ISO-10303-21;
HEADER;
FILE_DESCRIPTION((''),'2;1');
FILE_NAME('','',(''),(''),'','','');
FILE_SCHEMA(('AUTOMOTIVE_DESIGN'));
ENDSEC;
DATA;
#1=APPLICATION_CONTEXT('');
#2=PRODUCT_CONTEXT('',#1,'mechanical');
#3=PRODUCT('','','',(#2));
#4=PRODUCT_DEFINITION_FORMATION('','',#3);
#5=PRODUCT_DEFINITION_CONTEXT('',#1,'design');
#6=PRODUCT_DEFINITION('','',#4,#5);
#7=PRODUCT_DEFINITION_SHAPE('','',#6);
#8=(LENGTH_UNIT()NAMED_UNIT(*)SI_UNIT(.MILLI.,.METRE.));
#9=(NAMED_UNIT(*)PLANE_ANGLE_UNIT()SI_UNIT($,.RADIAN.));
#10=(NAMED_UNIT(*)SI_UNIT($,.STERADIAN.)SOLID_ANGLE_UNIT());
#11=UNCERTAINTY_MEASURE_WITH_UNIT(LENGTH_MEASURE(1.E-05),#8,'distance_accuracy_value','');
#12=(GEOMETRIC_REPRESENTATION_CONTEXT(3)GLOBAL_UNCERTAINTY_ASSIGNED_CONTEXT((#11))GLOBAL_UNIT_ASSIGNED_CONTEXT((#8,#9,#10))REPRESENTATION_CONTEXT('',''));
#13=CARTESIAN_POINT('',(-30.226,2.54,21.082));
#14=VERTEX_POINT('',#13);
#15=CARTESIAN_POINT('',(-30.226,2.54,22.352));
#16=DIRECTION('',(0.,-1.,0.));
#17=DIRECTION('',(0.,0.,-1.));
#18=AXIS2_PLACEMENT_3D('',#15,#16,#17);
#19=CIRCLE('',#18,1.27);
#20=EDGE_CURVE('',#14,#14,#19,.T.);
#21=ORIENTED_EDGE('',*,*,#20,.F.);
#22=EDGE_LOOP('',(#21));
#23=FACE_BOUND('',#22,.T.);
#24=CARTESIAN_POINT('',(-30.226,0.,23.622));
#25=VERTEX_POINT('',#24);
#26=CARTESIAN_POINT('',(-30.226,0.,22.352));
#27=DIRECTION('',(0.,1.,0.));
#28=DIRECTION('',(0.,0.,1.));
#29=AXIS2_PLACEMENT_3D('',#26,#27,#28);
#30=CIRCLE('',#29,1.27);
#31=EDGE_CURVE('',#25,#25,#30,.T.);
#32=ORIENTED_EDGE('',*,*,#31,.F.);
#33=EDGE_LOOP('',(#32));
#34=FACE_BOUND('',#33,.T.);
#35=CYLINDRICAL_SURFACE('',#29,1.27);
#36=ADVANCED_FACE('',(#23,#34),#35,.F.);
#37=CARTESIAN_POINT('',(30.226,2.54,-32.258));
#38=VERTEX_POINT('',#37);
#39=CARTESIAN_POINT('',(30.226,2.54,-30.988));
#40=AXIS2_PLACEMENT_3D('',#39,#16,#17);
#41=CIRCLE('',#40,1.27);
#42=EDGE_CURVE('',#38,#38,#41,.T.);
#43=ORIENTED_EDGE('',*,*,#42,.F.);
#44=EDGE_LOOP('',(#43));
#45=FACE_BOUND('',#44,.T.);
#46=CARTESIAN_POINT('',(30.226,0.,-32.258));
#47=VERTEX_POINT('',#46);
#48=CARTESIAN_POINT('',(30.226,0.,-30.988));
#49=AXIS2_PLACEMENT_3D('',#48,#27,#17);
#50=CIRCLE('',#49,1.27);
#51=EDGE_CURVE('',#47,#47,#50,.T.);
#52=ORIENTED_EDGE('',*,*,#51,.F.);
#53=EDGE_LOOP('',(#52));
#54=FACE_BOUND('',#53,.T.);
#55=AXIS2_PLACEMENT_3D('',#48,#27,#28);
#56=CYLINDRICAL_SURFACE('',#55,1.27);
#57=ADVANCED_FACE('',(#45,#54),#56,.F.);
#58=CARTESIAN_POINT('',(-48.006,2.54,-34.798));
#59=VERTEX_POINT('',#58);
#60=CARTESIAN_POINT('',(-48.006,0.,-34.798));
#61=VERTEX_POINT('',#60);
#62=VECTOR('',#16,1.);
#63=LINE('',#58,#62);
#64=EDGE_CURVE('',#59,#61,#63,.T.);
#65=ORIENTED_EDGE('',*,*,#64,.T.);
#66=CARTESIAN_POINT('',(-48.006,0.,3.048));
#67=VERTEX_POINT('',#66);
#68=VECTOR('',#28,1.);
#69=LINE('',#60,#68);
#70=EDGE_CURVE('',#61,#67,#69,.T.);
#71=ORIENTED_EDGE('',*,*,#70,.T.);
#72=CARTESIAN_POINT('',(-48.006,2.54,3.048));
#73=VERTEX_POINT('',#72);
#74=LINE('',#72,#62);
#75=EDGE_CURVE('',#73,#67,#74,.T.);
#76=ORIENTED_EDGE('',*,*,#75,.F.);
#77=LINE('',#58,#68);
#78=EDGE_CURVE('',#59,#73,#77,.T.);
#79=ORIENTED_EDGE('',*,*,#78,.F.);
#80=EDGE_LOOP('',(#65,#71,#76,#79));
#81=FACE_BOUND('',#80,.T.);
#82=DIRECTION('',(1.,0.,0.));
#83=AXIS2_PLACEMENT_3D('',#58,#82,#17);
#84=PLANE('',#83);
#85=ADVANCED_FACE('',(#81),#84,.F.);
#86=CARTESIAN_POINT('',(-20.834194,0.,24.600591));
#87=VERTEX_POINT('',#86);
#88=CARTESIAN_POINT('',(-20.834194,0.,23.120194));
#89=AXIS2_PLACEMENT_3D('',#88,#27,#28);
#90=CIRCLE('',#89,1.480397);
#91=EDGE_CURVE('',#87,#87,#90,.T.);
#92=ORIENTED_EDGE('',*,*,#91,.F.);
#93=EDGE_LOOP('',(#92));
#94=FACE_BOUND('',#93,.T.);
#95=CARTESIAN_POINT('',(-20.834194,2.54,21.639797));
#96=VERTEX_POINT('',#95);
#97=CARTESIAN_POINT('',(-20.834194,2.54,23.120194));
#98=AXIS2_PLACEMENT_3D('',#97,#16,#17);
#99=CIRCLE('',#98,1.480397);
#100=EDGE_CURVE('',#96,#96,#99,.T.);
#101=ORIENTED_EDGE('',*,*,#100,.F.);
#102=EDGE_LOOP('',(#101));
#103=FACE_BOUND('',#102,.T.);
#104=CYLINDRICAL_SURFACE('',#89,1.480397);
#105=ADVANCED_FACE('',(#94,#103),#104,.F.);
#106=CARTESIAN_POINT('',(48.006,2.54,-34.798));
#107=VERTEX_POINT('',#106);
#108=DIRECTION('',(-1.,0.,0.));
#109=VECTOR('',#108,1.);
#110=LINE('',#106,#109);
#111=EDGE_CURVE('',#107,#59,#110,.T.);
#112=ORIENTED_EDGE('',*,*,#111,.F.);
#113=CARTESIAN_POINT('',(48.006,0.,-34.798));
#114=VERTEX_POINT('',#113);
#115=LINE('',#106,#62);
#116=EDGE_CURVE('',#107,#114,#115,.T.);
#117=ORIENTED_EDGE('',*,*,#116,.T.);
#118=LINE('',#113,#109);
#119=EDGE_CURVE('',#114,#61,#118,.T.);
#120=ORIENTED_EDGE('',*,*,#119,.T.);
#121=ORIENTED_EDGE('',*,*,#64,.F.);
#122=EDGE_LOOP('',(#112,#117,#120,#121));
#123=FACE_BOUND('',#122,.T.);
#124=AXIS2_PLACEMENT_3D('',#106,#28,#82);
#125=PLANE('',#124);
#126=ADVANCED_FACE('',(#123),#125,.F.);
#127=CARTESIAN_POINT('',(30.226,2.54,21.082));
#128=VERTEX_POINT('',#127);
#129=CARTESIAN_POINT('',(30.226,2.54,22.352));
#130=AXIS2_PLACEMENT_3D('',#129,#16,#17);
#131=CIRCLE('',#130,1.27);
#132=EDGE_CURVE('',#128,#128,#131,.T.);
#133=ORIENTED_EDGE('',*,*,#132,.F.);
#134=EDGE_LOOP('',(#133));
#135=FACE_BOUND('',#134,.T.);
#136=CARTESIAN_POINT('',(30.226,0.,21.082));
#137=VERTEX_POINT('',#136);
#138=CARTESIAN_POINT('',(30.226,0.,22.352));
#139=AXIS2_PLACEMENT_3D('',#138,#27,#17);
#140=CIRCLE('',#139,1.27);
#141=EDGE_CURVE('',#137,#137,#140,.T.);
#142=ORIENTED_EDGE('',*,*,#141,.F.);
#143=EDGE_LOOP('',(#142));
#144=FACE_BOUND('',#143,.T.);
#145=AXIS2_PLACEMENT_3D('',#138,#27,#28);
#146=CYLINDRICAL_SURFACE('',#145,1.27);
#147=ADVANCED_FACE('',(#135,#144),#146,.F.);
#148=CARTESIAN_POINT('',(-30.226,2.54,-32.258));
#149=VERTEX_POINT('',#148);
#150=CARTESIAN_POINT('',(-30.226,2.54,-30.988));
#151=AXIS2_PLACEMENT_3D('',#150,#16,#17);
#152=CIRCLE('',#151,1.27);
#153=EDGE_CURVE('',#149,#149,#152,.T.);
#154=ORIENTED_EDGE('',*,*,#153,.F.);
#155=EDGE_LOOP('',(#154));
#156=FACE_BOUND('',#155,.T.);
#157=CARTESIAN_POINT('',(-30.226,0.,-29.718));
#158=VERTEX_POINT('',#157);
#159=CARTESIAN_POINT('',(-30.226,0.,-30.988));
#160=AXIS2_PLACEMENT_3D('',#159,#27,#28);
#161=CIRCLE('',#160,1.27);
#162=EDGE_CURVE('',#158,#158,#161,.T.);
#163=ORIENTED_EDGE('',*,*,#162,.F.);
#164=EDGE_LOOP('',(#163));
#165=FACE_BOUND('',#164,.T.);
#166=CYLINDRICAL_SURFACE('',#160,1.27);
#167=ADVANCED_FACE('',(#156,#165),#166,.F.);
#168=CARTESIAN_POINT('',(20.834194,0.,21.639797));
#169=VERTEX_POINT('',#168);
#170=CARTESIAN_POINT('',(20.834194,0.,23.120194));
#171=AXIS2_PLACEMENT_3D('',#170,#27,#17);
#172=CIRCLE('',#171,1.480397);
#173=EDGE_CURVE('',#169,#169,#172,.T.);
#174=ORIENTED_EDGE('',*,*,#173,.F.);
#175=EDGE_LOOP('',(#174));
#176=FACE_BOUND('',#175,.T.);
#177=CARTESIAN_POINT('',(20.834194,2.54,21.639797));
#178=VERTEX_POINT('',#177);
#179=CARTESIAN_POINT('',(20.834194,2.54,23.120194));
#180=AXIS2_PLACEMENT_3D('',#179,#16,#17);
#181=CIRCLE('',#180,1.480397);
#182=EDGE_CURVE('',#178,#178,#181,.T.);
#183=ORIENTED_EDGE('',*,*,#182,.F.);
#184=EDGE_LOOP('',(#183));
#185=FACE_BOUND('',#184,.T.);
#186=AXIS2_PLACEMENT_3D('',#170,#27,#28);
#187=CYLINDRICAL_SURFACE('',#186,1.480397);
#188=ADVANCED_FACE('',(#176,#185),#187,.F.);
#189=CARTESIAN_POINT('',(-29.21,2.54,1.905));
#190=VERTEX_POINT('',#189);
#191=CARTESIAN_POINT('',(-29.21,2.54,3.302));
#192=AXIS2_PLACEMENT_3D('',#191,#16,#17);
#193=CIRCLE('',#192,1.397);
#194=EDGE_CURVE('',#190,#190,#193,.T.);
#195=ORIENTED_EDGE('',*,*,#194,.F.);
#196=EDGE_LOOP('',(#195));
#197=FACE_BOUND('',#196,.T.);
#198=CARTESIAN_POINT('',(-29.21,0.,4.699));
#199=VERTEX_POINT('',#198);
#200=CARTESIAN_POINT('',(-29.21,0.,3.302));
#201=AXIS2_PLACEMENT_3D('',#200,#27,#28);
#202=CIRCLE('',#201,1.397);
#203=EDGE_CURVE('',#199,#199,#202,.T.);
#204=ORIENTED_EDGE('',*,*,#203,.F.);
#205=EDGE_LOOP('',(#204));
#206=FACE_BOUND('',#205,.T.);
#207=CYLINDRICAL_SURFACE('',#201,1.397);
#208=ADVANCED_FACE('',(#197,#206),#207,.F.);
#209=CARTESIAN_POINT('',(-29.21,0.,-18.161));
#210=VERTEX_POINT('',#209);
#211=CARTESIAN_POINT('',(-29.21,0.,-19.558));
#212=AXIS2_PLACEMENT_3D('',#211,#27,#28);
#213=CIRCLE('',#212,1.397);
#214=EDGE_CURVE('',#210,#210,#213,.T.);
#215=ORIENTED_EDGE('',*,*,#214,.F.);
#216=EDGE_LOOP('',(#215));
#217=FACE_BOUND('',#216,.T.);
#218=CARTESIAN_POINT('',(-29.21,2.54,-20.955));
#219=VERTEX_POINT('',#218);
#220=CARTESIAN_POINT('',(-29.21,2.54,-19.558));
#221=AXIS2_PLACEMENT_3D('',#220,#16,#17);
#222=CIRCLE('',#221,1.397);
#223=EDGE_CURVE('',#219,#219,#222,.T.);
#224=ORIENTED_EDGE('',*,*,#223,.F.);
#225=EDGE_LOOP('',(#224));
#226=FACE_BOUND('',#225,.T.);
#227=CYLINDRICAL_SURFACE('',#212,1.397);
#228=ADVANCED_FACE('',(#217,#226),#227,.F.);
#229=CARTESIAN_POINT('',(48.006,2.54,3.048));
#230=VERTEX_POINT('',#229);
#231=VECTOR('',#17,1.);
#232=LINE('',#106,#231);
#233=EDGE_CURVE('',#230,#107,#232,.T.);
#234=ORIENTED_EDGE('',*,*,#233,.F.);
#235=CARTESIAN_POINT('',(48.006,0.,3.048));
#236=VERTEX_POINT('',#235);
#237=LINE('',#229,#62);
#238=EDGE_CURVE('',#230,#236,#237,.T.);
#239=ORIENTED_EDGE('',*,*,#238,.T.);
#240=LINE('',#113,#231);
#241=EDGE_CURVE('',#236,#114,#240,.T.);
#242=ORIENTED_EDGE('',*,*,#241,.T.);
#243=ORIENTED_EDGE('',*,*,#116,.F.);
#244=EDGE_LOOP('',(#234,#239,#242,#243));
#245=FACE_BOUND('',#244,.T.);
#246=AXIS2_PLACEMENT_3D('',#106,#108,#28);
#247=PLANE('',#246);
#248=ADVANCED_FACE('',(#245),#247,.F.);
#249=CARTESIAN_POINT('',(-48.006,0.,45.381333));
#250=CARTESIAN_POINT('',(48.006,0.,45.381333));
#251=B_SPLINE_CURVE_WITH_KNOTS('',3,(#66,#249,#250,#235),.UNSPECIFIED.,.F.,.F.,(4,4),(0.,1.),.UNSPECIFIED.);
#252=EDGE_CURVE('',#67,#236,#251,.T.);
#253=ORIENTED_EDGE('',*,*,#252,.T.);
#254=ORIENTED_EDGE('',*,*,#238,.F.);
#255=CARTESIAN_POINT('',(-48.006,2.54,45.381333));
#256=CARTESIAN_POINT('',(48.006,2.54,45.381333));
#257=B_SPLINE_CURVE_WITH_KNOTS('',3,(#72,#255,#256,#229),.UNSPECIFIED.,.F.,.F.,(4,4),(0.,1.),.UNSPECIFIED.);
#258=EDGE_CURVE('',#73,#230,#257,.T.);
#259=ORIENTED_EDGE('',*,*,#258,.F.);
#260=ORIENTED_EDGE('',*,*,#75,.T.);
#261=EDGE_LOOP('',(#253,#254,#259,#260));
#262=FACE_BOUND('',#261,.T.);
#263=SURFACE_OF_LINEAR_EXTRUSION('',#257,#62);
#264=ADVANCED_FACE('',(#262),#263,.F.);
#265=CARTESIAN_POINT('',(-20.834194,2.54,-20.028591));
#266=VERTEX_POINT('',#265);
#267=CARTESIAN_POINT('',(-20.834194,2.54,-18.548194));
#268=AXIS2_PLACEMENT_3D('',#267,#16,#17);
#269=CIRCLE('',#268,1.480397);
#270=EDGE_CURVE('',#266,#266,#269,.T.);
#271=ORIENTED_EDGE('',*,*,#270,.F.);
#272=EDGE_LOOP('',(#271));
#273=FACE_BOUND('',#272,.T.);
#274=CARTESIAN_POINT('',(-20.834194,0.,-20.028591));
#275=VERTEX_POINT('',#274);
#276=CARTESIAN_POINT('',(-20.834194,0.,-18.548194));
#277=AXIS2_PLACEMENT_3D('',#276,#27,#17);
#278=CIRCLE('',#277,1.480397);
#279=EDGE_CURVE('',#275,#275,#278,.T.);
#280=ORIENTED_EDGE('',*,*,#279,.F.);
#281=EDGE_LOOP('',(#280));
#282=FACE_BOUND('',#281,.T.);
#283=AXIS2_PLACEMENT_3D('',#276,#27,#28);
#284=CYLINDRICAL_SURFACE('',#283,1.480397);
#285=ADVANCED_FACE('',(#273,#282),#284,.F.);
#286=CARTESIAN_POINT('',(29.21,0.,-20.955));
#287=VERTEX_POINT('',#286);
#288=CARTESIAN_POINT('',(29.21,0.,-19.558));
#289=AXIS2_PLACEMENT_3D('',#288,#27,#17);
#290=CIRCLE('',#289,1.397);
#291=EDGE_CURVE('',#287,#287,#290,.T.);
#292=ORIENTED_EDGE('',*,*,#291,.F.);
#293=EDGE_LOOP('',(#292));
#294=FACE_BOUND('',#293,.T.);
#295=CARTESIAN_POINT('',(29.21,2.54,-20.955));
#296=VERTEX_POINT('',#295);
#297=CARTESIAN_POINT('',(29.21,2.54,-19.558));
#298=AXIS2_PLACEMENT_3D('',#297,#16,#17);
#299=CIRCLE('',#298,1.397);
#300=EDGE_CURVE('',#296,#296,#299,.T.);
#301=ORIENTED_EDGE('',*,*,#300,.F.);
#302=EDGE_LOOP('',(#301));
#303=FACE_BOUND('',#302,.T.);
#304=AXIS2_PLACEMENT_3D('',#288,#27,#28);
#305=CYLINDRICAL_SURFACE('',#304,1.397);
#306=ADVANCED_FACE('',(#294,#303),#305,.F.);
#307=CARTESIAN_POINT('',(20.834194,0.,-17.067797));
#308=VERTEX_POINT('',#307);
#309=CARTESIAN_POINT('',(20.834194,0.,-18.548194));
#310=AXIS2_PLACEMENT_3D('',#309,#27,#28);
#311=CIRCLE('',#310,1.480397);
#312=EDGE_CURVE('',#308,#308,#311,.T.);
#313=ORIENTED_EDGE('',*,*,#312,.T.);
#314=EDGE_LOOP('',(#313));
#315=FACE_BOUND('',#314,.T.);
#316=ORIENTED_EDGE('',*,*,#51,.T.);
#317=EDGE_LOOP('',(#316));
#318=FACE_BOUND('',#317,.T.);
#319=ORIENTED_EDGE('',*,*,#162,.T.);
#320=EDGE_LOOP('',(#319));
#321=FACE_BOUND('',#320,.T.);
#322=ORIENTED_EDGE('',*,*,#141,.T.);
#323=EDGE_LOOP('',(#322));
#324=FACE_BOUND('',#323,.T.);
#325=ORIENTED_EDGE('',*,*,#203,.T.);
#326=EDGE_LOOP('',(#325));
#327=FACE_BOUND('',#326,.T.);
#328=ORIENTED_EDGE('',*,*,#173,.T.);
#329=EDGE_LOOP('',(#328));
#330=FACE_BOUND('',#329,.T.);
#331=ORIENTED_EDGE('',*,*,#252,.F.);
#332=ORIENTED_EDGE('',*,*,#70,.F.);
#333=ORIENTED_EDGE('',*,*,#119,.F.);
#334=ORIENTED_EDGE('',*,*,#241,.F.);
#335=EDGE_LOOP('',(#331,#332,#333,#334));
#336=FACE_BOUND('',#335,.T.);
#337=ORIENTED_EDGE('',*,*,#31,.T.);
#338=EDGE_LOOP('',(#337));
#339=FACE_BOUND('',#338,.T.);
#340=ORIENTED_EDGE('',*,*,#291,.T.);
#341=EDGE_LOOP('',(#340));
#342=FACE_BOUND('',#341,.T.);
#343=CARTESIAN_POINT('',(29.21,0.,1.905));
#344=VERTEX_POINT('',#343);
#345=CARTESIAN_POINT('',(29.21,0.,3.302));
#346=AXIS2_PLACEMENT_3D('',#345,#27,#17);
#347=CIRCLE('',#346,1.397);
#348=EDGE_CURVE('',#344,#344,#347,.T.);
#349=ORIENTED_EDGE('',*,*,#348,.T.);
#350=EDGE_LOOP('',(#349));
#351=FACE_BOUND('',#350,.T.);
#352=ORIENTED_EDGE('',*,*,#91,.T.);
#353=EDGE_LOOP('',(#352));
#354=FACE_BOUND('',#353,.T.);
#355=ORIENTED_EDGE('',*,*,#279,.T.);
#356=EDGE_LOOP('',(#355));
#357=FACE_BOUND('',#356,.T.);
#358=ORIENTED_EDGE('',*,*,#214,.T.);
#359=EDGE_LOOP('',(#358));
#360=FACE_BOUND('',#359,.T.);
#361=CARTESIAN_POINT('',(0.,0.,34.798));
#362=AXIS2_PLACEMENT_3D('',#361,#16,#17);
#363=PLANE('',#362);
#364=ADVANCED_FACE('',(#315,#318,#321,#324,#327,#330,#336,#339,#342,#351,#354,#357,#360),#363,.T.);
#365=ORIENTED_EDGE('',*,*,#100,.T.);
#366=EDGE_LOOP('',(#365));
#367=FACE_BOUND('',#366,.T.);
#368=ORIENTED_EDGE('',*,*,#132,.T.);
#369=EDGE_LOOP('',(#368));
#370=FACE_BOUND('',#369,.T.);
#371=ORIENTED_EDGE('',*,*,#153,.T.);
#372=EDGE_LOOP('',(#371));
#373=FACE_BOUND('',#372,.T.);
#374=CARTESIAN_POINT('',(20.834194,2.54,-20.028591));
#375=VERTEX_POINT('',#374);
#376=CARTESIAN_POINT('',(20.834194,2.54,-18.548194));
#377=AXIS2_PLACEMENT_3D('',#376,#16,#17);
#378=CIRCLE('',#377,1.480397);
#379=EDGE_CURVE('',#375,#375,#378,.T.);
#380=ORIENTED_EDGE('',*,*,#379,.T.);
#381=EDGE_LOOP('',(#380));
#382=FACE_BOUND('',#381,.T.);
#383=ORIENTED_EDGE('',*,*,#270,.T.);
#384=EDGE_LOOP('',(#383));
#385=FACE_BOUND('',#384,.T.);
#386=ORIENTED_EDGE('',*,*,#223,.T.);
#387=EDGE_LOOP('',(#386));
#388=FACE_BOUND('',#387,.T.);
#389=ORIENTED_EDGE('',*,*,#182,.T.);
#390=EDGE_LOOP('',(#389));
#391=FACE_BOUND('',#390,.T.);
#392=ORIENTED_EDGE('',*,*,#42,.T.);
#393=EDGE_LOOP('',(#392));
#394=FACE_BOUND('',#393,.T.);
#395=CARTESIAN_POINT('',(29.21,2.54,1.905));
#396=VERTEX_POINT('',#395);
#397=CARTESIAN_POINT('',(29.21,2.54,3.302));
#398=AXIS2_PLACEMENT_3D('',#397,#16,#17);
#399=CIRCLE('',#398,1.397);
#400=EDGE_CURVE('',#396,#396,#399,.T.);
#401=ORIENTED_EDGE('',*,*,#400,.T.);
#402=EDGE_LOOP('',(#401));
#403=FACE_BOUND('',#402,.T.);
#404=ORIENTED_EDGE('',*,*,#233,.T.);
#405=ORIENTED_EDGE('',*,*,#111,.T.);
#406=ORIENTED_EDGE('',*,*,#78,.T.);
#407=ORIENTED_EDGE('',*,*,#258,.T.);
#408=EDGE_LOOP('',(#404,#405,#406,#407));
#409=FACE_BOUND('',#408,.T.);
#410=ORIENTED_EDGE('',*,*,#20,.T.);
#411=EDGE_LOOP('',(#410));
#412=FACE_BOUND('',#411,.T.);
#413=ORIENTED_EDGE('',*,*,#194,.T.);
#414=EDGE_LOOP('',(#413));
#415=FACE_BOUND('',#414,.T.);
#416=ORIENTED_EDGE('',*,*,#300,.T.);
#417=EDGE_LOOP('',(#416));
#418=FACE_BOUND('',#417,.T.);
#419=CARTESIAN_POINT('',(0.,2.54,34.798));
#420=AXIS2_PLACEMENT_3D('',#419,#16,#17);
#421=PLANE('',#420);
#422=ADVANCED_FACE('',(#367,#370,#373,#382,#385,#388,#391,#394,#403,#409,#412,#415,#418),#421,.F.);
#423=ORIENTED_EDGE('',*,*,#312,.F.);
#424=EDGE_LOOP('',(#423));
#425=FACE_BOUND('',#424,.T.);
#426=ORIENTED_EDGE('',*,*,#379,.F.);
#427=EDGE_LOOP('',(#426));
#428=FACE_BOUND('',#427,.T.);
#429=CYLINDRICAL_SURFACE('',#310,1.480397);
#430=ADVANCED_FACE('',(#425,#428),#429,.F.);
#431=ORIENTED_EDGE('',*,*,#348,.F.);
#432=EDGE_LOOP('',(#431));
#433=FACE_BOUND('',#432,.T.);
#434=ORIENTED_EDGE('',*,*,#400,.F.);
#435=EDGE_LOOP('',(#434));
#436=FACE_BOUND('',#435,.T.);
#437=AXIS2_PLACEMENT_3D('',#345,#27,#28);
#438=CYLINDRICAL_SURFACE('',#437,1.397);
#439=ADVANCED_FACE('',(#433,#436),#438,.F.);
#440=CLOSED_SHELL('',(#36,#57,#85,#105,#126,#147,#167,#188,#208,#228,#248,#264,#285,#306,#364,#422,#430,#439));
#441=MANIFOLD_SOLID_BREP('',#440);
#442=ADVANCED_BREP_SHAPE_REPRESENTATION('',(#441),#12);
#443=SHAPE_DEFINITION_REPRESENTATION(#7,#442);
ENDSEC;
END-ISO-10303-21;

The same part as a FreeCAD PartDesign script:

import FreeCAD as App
import Part
import Sketcher
Q = App.Units.Quantity

doc = App.newDocument("Part")
body = doc.addObject("PartDesign::Body", "Body")

sketch1 = body.newObject("Sketcher::SketchObject", "Sketch")
sketch1.AttachmentSupport = (doc.getObject("XZ_Plane"), [""])
sketch1.MapMode = "FlatFace"
sketch1.addGeometry([
    Part.LineSegment(App.Vector(48.006, -34.798, 0), App.Vector(-48.006, -34.798, 0)),
    Part.LineSegment(App.Vector(-48.006, -34.798, 0), App.Vector(-48.006, 3.048, 0)),
    Part.BSplineCurve([App.Vector(-48.006, 3.048, 0), App.Vector(-48.006, 45.381333, 0), App.Vector(48.006, 45.381333, 0), App.Vector(48.006, 3.048, 0)], [4, 4], [0, 1], False, 3, [1, 1, 1, 1], False),
    Part.LineSegment(App.Vector(48.006, 3.048, 0), App.Vector(48.006, -34.798, 0)),
], False)
sketch1.addConstraint([
    Sketcher.Constraint("Block", 2),
    Sketcher.Constraint("Coincident", 0, 2, 1, 1),
    Sketcher.Constraint("Coincident", 1, 2, 2, 1),
    Sketcher.Constraint("Coincident", 2, 2, 3, 1),
    Sketcher.Constraint("Coincident", 3, 2, 0, 1),
    Sketcher.Constraint("Horizontal", 0),
    Sketcher.Constraint("Vertical", 1),
    Sketcher.Constraint("Vertical", 3),
    Sketcher.Constraint("DistanceY", 1, 1, 1, 2, Q("1.49 in")),
])
pad1 = body.newObject("PartDesign::Pad", "Pad")
pad1.Profile = sketch1
pad1.Length = Q("0.1 in")
pad1.Reversed = True

sketch2 = body.newObject("Sketcher::SketchObject", "Sketch001")
sketch2.AttachmentSupport = (doc.getObject("XZ_Plane"), [""])
sketch2.MapMode = "FlatFace"
sketch2.AttachmentOffset = App.Placement(App.Vector(0, 0, -0.1 * 25.4), App.Rotation())
sketch2.addGeometry([
    Part.Circle(App.Vector(-30.2, -31, 0), App.Vector(0, 0, 1), 1.3),
    Part.Circle(App.Vector(-30.2, 22.4, 0), App.Vector(0, 0, 1), 1.3),
    Part.Circle(App.Vector(30.2, 22.4, 0), App.Vector(0, 0, 1), 1.3),
    Part.Circle(App.Vector(30.2, -31, 0), App.Vector(0, 0, 1), 1.3),
    Part.Circle(App.Vector(-29.2, -19.6, 0), App.Vector(0, 0, 1), 1.4),
    Part.Circle(App.Vector(-29.2, 3.3, 0), App.Vector(0, 0, 1), 1.4),
    Part.Circle(App.Vector(29.2, 3.3, 0), App.Vector(0, 0, 1), 1.4),
    Part.Circle(App.Vector(29.2, -19.6, 0), App.Vector(0, 0, 1), 1.4),
    Part.Circle(App.Vector(20.8, -18.5, 0), App.Vector(0, 0, 1), 1.5),
    Part.Circle(App.Vector(20.8, 23.1, 0), App.Vector(0, 0, 1), 1.5),
    Part.Circle(App.Vector(-20.8, -18.5, 0), App.Vector(0, 0, 1), 1.5),
    Part.Circle(App.Vector(-20.8, 23.1, 0), App.Vector(0, 0, 1), 1.5),
], False)
sketch2.addConstraint([
    Sketcher.Constraint("Equal", 0, 1),
    Sketcher.Constraint("Equal", 1, 2),
    Sketcher.Constraint("Equal", 2, 3),
    Sketcher.Constraint("Equal", 4, 5),
    Sketcher.Constraint("Equal", 5, 6),
    Sketcher.Constraint("Equal", 6, 7),
    Sketcher.Constraint("Equal", 8, 9),
    Sketcher.Constraint("Equal", 9, 10),
    Sketcher.Constraint("Equal", 10, 11),
    Sketcher.Constraint("Symmetric", 1, 3, 2, 3, -2),
    Sketcher.Constraint("Symmetric", 0, 3, 3, 3, -2),
    Sketcher.Constraint("Symmetric", 5, 3, 6, 3, -2),
    Sketcher.Constraint("Symmetric", 4, 3, 7, 3, -2),
    Sketcher.Constraint("Symmetric", 8, 3, 10, 3, -2),
    Sketcher.Constraint("Symmetric", 9, 3, 11, 3, -2),
    Sketcher.Constraint("Vertical", 0, 3, 1, 3),
    Sketcher.Constraint("Vertical", 4, 3, 5, 3),
    Sketcher.Constraint("Vertical", 8, 3, 9, 3),
    Sketcher.Constraint("Diameter", 0, Q("0.1 in")),
    Sketcher.Constraint("Diameter", 4, Q("0.11 in")),
    Sketcher.Constraint("DistanceY", 0, 3, 1, 3, Q("2.1 in")),
    Sketcher.Constraint("DistanceY", 4, 3, 5, 3, Q("0.9 in")),
    Sketcher.Constraint("DistanceX", 5, 3, 6, 3, Q("2.3 in")),
    Sketcher.Constraint("DistanceX", 0, 3, -1, 1, Q("1.19 in")),
    Sketcher.Constraint("DistanceY", 0, 3, -1, 1, Q("1.22 in")),
    Sketcher.Constraint("DistanceY", 4, 3, -1, 1, Q("0.77 in")),
    Sketcher.Constraint("Diameter", 8, 2.960793),
    Sketcher.Constraint("DistanceY", 8, 3, 9, 3, 41.668388),
    Sketcher.Constraint("DistanceX", 10, 3, 8, 3, 41.668388),
    Sketcher.Constraint("DistanceY", 8, 3, -1, 1, 18.548194),
])
pocket1 = body.newObject("PartDesign::Pocket", "Pocket")
pocket1.Profile = sketch2
pocket1.Type = "ThroughAll"
pocket1.Midplane = True

doc.recompute()
